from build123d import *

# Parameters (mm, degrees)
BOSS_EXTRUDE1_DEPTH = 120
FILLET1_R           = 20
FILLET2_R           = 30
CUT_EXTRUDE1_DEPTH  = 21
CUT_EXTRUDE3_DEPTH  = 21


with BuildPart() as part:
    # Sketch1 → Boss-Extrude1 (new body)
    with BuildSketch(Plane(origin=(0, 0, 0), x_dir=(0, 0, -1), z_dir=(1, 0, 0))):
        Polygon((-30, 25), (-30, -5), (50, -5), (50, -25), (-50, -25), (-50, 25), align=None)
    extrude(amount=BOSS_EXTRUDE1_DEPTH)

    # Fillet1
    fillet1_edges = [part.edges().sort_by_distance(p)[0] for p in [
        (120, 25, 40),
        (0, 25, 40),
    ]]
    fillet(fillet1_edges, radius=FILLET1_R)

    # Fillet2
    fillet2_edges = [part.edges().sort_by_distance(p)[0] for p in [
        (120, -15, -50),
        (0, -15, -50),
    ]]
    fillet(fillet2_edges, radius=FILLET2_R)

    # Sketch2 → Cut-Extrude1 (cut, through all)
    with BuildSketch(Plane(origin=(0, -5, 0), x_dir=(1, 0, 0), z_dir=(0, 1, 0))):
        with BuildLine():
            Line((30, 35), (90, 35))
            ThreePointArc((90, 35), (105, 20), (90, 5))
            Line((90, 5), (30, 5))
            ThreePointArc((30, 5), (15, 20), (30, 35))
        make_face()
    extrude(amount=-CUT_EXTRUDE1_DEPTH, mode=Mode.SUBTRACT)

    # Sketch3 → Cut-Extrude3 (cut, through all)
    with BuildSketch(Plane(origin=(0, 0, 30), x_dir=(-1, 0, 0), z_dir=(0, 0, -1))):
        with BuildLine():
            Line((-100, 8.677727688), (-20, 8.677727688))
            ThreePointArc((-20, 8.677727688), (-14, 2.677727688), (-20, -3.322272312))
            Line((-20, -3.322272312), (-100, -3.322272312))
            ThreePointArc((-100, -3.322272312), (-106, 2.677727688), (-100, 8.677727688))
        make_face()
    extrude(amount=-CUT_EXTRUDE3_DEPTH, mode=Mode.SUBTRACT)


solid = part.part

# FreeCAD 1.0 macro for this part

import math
import FreeCAD as App
import Part
import Sketcher
from FreeCAD import Vector


def edges_at(feature, points):
    """Names of the edges that pass closest to the given points."""
    edges = feature.Shape.Edges
    near = lambda p: min(range(len(edges)), key=lambda i: edges[i].distToShape(Part.Vertex(*p))[0])
    return sorted({f"Edge{near(p) + 1}" for p in points})


def add_polygon(sketch, points):
    """Adds a closed chain of lines whose ends are joined by coincident constraints."""
    first, n = sketch.GeometryCount, len(points)
    for a, b in zip(points, points[1:] + points[:1]):
        sketch.addGeometry(Part.LineSegment(App.Vector(*a, 0), App.Vector(*b, 0)), False)
    for i in range(n):
        sketch.addConstraint(Sketcher.Constraint("Coincident", first + i, 2, first + (i + 1) % n, 1))

doc = App.newDocument("Part")
body = doc.addObject("PartDesign::Body", "Body")

sketch1 = body.newObject("Sketcher::SketchObject", "Sketch")
sketch1.AttachmentSupport = (doc.getObject("YZ_Plane"), [""])
sketch1.MapMode = "FlatFace"
add_polygon(sketch1, [(-5, 30), (25, 30), (25, 50), (-25, 50), (-25, -50), (-5, -50)])
sketch1.addConstraint([
    Sketcher.Constraint("Horizontal", 0),
    Sketcher.Constraint("Vertical", 1),
    Sketcher.Constraint("Horizontal", 2),
    Sketcher.Constraint("Vertical", 3),
    Sketcher.Constraint("Horizontal", 4),
    Sketcher.Constraint("Vertical", 5),
    Sketcher.Constraint("Symmetric", 1, 2, 3, 2, -1, 1),
    Sketcher.Constraint("Equal", 4, 1),
    Sketcher.Constraint("DistanceX", 0, 1, 0, 2, 30.0),
    Sketcher.Constraint("DistanceX", 2, 2, 2, 1, 50.0),
    Sketcher.Constraint("DistanceY", 3, 2, 3, 1, 100.0),
])
pad1 = body.newObject("PartDesign::Pad", "Pad")
pad1.Profile = sketch1
pad1.Length = 120
doc.recompute()

fillet = body.newObject("PartDesign::Fillet", "Fillet")
fillet.Base = (pad1, edges_at(pad1, [(120, 25, 40), (0, 25, 40)]))
fillet.Radius = 20
doc.recompute()

fillet2 = body.newObject("PartDesign::Fillet", "Fillet001")
fillet2.Base = (fillet, edges_at(fillet, [(120, -15, -50), (0, -15, -50)]))
fillet2.Radius = 30

sketch2 = body.newObject("Sketcher::SketchObject", "Sketch001")
sketch2.AttachmentSupport = (doc.getObject("XZ_Plane"), [""])
sketch2.MapMode = "FlatFace"
sketch2.AttachmentOffset = App.Placement(Vector(0, 0, 5), App.Rotation())
sketch2.addGeometry([
    Part.LineSegment(Vector(90, -35, 0), Vector(30, -35, 0)),
    Part.ArcOfCircle(Part.Circle(Vector(30, -20, 0), Vector(0, 0, 1), 15), math.radians(90), math.radians(270)),
    Part.LineSegment(Vector(30, -5, 0), Vector(90, -5, 0)),
    Part.ArcOfCircle(Part.Circle(Vector(90, -20, 0), Vector(0, 0, 1), 15), math.radians(-90), math.radians(90)),
], False)
sketch2.addConstraint([
    Sketcher.Constraint("Tangent", 0, 2, 1, 2),
    Sketcher.Constraint("Tangent", 1, 1, 2, 1),
    Sketcher.Constraint("Tangent", 2, 2, 3, 2),
    Sketcher.Constraint("Tangent", 3, 1, 0, 1),
    Sketcher.Constraint("Horizontal", 0),
    Sketcher.Constraint("Horizontal", 2),
    Sketcher.Constraint("Radius", 1, 15.0),
    Sketcher.Constraint("DistanceX", 0, 2, 0, 1, 60.0),
    Sketcher.Constraint("DistanceX", -1, 1, 1, 3, 30.0),
    Sketcher.Constraint("DistanceY", 1, 3, -1, 1, 20.0),
])
pocket1 = body.newObject("PartDesign::Pocket", "Pocket")
pocket1.Profile = sketch2
pocket1.Type = "ThroughAll"
pocket1.Reversed = True

sketch3 = body.newObject("Sketcher::SketchObject", "Sketch002")
sketch3.AttachmentSupport = (doc.getObject("XY_Plane"), [""])
sketch3.MapMode = "FlatFace"
sketch3.AttachmentOffset = App.Placement(Vector(0, 0, 30), App.Rotation())
sketch3.addGeometry([
    Part.LineSegment(Vector(20, 9, 0), Vector(100, 9, 0)),
    Part.ArcOfCircle(Part.Circle(Vector(100, 3, 0), Vector(0, 0, 1), 6), math.radians(-90), math.radians(90)),
    Part.LineSegment(Vector(100, -3, 0), Vector(20, -3, 0)),
    Part.ArcOfCircle(Part.Circle(Vector(20, 3, 0), Vector(0, 0, 1), 6), math.radians(90), math.radians(270)),
], False)
sketch3.addConstraint([
    Sketcher.Constraint("Tangent", 0, 2, 1, 2),
    Sketcher.Constraint("Tangent", 1, 1, 2, 1),
    Sketcher.Constraint("Tangent", 2, 2, 3, 2),
    Sketcher.Constraint("Tangent", 3, 1, 0, 1),
    Sketcher.Constraint("Horizontal", 0),
    Sketcher.Constraint("Horizontal", 2),
    Sketcher.Constraint("Radius", 1, 6.0),
    Sketcher.Constraint("DistanceX", 0, 1, 0, 2, 80.0),
    Sketcher.Constraint("DistanceX", -1, 1, 1, 3, 100.0),
    Sketcher.Constraint("DistanceY", -1, 1, 1, 3, 2.677728),
])
pocket2 = body.newObject("PartDesign::Pocket", "Pocket001")
pocket2.Profile = sketch3
pocket2.Type = "ThroughAll"
pocket2.Reversed = True

doc.recompute()
